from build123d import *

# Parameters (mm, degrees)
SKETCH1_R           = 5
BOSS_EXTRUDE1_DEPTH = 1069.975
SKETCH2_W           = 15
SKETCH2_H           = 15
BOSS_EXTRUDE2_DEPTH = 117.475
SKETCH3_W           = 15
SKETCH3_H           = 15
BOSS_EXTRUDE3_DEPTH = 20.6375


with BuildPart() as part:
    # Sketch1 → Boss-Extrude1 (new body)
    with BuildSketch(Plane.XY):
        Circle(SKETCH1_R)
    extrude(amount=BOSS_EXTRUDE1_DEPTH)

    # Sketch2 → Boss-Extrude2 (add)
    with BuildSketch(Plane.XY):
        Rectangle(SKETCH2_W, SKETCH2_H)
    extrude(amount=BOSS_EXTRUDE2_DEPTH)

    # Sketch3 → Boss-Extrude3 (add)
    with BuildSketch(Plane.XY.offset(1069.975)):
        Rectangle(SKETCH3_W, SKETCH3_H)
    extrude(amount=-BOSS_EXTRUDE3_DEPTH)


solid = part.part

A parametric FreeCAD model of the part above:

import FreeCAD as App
import Part
import Sketcher
Q = App.Units.Quantity

doc = App.newDocument("Part")
body = doc.addObject("PartDesign::Body", "Body")

# Sketch on XY plane
sketch1 = body.newObject("Sketcher::SketchObject", "Sketch")
sketch1.AttachmentSupport = (doc.getObject("XY_Plane"), [""])
sketch1.MapMode = "FlatFace"
sketch1.addGeometry(Part.Circle(App.Vector(0, 0, 0), App.Vector(0, 0, 1), 5), False)
sketch1.addConstraint([
    Sketcher.Constraint("Coincident", 0, 3, -1, 1),
    Sketcher.Constraint("Diameter", 0, Q("10 mm")),
])
pad1 = body.newObject("PartDesign::Pad", "Pad")
pad1.Profile = sketch1
pad1.Length = Q("42.125 in")

# Sketch on XY plane
sketch2 = body.newObject("Sketcher::SketchObject", "Sketch001")
sketch2.AttachmentSupport = (doc.getObject("XY_Plane"), [""])
sketch2.MapMode = "FlatFace"
sketch2.addGeometry([
    Part.LineSegment(App.Vector(-8, 8, 0), App.Vector(-8, -8, 0)),
    Part.LineSegment(App.Vector(-8, -8, 0), App.Vector(8, -8, 0)),
    Part.LineSegment(App.Vector(8, -8, 0), App.Vector(8, 8, 0)),
    Part.LineSegment(App.Vector(8, 8, 0), App.Vector(-8, 8, 0)),
], False)
sketch2.addConstraint([
    Sketcher.Constraint("Coincident", 0, 2, 1, 1),
    Sketcher.Constraint("Coincident", 1, 2, 2, 1),
    Sketcher.Constraint("Coincident", 2, 2, 3, 1),
    Sketcher.Constraint("Coincident", 3, 2, 0, 1),
    Sketcher.Constraint("Vertical", 0),
    Sketcher.Constraint("Horizontal", 1),
    Sketcher.Constraint("Vertical", 2),
    Sketcher.Constraint("Horizontal", 3),
    Sketcher.Constraint("Symmetric", 0, 2, 2, 2, -1, 1),
    Sketcher.Constraint("Equal", 3, 0),
    Sketcher.Constraint("DistanceX", 1, 1, 1, 2, Q("15 mm")),
])
pad2 = body.newObject("PartDesign::Pad", "Pad001")
pad2.Profile = sketch2
pad2.Length = Q("4.625 in")

# Sketch on XY plane
sketch3 = body.newObject("Sketcher::SketchObject", "Sketch002")
sketch3.AttachmentSupport = (doc.getObject("XY_Plane"), [""])
sketch3.MapMode = "FlatFace"
sketch3.AttachmentOffset = App.Placement(App.Vector(0, 0, 42.125 * 25.4), App.Rotation())
sketch3.addGeometry([
    Part.LineSegment(App.Vector(-8, 8, 0), App.Vector(-8, -8, 0)),
    Part.LineSegment(App.Vector(-8, -8, 0), App.Vector(8, -8, 0)),
    Part.LineSegment(App.Vector(8, -8, 0), App.Vector(8, 8, 0)),
    Part.LineSegment(App.Vector(8, 8, 0), App.Vector(-8, 8, 0)),
], False)
sketch3.addConstraint([
    Sketcher.Constraint("Coincident", 0, 2, 1, 1),
    Sketcher.Constraint("Coincident", 1, 2, 2, 1),
    Sketcher.Constraint("Coincident", 2, 2, 3, 1),
    Sketcher.Constraint("Coincident", 3, 2, 0, 1),
    Sketcher.Constraint("Vertical", 0),
    Sketcher.Constraint("Horizontal", 1),
    Sketcher.Constraint("Vertical", 2),
    Sketcher.Constraint("Horizontal", 3),
    Sketcher.Constraint("Symmetric", 0, 2, 2, 2, -1, 1),
    Sketcher.Constraint("Equal", 3, 0),
    Sketcher.Constraint("DistanceX", 1, 1, 1, 2, Q("15 mm")),
])
pad3 = body.newObject("PartDesign::Pad", "Pad002")
pad3.Profile = sketch3
pad3.Length = Q("0.8125 in")
pad3.Reversed = True

doc.recompute()
